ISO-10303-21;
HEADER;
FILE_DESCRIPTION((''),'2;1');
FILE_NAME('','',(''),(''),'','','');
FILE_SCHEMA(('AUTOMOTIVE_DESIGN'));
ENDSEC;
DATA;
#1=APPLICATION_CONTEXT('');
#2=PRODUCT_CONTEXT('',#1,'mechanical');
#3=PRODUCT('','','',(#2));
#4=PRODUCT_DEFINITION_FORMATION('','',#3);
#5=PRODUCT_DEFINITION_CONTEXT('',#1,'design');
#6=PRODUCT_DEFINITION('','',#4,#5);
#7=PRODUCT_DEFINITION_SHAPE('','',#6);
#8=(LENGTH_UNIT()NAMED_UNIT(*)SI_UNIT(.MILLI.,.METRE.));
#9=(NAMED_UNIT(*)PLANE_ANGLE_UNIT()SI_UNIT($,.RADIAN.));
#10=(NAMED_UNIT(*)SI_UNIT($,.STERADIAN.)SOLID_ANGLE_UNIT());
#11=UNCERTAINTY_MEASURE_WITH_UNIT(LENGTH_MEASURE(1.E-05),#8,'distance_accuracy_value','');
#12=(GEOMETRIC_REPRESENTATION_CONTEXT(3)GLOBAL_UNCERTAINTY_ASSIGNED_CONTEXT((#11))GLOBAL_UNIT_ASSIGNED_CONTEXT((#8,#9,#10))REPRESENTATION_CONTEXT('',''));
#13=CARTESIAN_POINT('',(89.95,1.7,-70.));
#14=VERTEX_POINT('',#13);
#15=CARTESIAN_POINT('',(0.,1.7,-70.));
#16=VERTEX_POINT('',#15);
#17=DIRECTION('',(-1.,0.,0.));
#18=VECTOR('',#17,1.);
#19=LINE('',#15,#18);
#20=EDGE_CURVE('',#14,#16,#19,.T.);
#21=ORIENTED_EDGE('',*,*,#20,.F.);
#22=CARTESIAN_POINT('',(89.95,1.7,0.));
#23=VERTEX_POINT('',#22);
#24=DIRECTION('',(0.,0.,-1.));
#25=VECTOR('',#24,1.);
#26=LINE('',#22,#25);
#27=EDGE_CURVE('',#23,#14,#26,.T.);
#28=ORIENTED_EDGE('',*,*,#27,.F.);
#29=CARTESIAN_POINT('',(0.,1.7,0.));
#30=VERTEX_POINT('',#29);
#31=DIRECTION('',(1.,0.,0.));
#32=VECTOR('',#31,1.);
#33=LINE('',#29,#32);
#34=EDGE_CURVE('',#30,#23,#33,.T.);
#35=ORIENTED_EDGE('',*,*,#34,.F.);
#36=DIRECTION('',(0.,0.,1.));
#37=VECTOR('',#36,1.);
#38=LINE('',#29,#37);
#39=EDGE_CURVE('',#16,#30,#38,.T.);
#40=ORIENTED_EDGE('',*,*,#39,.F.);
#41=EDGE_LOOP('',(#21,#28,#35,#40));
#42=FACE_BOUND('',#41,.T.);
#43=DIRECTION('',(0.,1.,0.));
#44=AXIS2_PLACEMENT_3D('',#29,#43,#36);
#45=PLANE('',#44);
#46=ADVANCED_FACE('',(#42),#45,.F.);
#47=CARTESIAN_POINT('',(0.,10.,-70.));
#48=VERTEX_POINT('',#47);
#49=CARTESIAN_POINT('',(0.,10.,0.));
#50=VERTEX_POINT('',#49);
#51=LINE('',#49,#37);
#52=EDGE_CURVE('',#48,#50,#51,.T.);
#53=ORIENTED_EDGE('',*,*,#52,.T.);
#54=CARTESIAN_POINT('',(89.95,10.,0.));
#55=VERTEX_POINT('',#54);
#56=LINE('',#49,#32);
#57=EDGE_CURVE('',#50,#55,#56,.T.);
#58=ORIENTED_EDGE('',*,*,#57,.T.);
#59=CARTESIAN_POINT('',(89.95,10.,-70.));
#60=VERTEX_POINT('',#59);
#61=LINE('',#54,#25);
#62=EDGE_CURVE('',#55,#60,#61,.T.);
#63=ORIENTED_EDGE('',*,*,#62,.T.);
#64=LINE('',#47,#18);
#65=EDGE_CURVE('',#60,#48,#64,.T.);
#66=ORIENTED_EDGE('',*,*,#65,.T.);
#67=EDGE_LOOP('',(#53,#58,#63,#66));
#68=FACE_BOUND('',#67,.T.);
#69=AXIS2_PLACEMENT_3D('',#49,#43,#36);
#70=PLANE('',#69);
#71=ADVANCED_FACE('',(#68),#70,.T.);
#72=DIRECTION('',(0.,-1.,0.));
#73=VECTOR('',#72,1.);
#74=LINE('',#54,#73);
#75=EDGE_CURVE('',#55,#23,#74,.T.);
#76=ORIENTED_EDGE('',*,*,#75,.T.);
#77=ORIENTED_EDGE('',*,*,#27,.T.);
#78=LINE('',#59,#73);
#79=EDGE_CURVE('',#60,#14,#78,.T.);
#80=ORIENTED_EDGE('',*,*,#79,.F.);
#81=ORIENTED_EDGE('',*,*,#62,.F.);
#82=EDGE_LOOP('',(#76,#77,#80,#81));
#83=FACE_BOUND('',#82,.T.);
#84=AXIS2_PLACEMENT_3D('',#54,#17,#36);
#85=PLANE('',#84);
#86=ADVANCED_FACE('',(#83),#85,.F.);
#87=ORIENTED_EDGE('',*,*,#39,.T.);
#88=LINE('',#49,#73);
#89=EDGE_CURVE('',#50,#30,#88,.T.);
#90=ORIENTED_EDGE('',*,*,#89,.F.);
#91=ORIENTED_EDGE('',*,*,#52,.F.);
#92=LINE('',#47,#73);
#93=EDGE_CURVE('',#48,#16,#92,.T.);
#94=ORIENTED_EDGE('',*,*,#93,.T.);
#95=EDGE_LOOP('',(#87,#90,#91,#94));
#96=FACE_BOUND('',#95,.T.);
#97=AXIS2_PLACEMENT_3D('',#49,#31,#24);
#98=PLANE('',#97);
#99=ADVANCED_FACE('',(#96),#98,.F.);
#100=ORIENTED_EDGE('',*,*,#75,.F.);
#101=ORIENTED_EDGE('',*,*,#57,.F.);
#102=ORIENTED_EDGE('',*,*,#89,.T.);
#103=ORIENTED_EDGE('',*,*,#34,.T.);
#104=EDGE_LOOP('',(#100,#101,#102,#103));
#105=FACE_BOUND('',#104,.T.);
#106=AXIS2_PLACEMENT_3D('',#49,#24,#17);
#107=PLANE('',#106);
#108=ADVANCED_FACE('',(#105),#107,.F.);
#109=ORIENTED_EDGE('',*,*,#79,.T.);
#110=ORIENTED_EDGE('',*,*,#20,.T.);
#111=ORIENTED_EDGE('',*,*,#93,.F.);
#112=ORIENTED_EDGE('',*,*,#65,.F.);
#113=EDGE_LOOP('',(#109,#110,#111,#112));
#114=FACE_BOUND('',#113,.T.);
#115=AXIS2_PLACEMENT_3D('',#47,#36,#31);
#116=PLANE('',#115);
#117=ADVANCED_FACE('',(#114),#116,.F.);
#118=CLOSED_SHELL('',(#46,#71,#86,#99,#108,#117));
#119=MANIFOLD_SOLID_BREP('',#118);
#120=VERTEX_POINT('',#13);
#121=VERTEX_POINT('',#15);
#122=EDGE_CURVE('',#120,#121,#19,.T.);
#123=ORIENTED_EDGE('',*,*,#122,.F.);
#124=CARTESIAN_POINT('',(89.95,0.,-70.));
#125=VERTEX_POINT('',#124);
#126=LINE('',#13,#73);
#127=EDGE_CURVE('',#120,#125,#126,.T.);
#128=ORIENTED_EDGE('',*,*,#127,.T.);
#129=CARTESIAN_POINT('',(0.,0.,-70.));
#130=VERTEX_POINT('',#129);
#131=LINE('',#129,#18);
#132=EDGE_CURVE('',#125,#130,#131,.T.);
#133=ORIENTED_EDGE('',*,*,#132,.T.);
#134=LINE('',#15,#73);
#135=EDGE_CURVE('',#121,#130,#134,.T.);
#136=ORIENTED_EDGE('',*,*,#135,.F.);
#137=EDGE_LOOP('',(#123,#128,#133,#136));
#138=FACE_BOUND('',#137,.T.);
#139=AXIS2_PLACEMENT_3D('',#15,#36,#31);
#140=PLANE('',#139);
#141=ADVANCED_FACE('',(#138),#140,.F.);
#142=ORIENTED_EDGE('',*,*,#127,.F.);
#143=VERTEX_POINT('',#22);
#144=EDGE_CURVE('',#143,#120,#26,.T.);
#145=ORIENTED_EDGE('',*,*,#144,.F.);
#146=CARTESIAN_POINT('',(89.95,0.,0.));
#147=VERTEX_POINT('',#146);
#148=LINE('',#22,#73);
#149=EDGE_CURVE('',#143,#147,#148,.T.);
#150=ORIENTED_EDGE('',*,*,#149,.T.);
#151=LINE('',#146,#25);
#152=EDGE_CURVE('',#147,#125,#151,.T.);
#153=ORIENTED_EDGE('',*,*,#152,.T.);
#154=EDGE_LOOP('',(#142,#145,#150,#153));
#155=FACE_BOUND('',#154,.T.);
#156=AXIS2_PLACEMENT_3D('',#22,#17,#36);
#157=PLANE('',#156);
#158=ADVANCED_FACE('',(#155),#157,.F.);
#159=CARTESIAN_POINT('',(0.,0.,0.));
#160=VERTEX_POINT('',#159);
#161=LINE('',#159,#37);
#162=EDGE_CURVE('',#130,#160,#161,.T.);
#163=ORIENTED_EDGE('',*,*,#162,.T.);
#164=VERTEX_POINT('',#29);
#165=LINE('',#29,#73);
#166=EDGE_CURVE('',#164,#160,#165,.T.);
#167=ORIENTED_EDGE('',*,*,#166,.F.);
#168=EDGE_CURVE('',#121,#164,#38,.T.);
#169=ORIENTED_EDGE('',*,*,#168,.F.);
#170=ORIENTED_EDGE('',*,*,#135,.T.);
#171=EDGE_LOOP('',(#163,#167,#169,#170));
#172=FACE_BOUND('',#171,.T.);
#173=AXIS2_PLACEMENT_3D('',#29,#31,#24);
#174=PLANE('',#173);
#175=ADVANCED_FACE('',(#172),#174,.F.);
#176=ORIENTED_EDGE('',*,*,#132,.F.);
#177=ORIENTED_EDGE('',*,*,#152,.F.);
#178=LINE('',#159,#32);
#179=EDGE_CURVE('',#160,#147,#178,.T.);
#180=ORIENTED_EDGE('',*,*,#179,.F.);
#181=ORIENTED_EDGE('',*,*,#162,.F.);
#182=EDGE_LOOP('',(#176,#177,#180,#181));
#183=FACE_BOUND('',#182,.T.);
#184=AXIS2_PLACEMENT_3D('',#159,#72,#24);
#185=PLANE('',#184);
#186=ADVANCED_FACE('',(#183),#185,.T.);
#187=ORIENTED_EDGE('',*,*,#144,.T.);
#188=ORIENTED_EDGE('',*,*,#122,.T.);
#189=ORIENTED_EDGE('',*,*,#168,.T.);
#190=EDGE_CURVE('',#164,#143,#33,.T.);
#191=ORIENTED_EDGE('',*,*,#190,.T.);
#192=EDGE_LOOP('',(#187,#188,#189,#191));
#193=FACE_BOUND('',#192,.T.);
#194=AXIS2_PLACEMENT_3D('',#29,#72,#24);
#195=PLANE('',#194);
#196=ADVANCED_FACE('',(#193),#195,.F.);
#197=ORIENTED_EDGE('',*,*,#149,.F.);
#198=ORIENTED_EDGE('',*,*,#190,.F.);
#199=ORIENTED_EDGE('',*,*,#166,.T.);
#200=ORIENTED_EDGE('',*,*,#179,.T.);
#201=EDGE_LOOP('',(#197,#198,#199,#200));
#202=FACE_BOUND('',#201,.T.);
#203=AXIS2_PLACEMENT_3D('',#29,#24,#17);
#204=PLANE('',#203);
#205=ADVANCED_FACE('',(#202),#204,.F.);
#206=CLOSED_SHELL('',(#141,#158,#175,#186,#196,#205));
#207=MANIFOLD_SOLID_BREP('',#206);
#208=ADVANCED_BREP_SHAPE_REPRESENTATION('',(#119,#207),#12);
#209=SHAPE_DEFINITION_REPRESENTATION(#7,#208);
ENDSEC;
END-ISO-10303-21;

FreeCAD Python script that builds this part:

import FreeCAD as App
import Part
import Sketcher

V = App.Vector
Q = App.Units.Quantity

doc = App.newDocument("Part")
params = doc.addObject("Spreadsheet::Sheet", "Params")
for row, (alias, value) in enumerate([
    ("sketch1_height", "70 mm"),
    ("sketch1_width", "89.95 mm"),
    ("pad1_length", "1.7 mm"),
    ("sketch2_height", "70 mm"),
    ("sketch2_width", "89.95 mm"),
    ("pad2_length", "8.3 mm"),
], start=1):
    params.set(f"A{row}", alias)
    params.set(f"B{row}", "=" + value)
    params.setAlias(f"B{row}", alias)

body = doc.addObject("PartDesign::Body", "Body")

sketch1 = doc.addObject("Sketcher::SketchObject", "Sketch")
body.addObject(sketch1)
sketch1.AttachmentSupport = (doc.XZ_Plane, [""])
sketch1.MapMode = "FlatFace"
sketch1.addGeometry(Part.LineSegment(V(0, -70, 0), V(0, 0, 0)), False)
sketch1.addGeometry(Part.LineSegment(V(0, 0, 0), V(90, 0, 0)), False)
sketch1.addGeometry(Part.LineSegment(V(90, 0, 0), V(90, -70, 0)), False)
sketch1.addGeometry(Part.LineSegment(V(90, -70, 0), V(0, -70, 0)), False)
sketch1.addConstraint(Sketcher.Constraint("Coincident", 0, 2, 1, 1))
sketch1.addConstraint(Sketcher.Constraint("Coincident", 1, 2, 2, 1))
sketch1.addConstraint(Sketcher.Constraint("Coincident", 2, 2, 3, 1))
sketch1.addConstraint(Sketcher.Constraint("Coincident", 3, 2, 0, 1))
sketch1.addConstraint(Sketcher.Constraint("Vertical", 0))
sketch1.addConstraint(Sketcher.Constraint("Horizontal", 1))
sketch1.addConstraint(Sketcher.Constraint("Vertical", 2))
sketch1.addConstraint(Sketcher.Constraint("Horizontal", 3))
sketch1.addConstraint(Sketcher.Constraint("Coincident", 0, 2, -1, 1))
sketch1.addConstraint(Sketcher.Constraint("DistanceY", 0, 1, 0, 2, Q("70 mm")))
sketch1.addConstraint(Sketcher.Constraint("DistanceX", 1, 1, 1, 2, Q("89.95 mm")))
sketch1.setExpression("Constraints[9]", "Params.sketch1_height")
sketch1.setExpression("Constraints[10]", "Params.sketch1_width")
pad1 = doc.addObject("PartDesign::Pad", "Pad")
body.addObject(pad1)
pad1.Profile = sketch1
pad1.setExpression("Length", "Params.pad1_length")
pad1.Reversed = True
body2 = doc.addObject("PartDesign::Body", "Body001")

sketch2 = doc.addObject("Sketcher::SketchObject", "Sketch001")
body2.addObject(sketch2)
sketch2.AttachmentSupport = (doc.getObject("XZ_Plane001"), [""])
sketch2.MapMode = "FlatFace"
sketch2.AttachmentOffset = App.Placement(V(0, 0, -1.7), App.Rotation())
sketch2.addGeometry(Part.LineSegment(V(0, -70, 0), V(0, 0, 0)), False)
sketch2.addGeometry(Part.LineSegment(V(0, 0, 0), V(90, 0, 0)), False)
sketch2.addGeometry(Part.LineSegment(V(90, 0, 0), V(90, -70, 0)), False)
sketch2.addGeometry(Part.LineSegment(V(90, -70, 0), V(0, -70, 0)), False)
sketch2.addConstraint(Sketcher.Constraint("Coincident", 0, 2, 1, 1))
sketch2.addConstraint(Sketcher.Constraint("Coincident", 1, 2, 2, 1))
sketch2.addConstraint(Sketcher.Constraint("Coincident", 2, 2, 3, 1))
sketch2.addConstraint(Sketcher.Constraint("Coincident", 3, 2, 0, 1))
sketch2.addConstraint(Sketcher.Constraint("Vertical", 0))
sketch2.addConstraint(Sketcher.Constraint("Horizontal", 1))
sketch2.addConstraint(Sketcher.Constraint("Vertical", 2))
sketch2.addConstraint(Sketcher.Constraint("Horizontal", 3))
sketch2.addConstraint(Sketcher.Constraint("Coincident", 0, 2, -1, 1))
sketch2.addConstraint(Sketcher.Constraint("DistanceY", 0, 1, 0, 2, Q("70 mm")))
sketch2.addConstraint(Sketcher.Constraint("DistanceX", 1, 1, 1, 2, Q("89.95 mm")))
sketch2.setExpression("Constraints[9]", "Params.sketch2_height")
sketch2.setExpression("Constraints[10]", "Params.sketch2_width")
pad2 = doc.addObject("PartDesign::Pad", "Pad001")
body2.addObject(pad2)
pad2.Profile = sketch2
pad2.setExpression("Length", "Params.pad2_length")
pad2.Reversed = True

doc.recompute()
